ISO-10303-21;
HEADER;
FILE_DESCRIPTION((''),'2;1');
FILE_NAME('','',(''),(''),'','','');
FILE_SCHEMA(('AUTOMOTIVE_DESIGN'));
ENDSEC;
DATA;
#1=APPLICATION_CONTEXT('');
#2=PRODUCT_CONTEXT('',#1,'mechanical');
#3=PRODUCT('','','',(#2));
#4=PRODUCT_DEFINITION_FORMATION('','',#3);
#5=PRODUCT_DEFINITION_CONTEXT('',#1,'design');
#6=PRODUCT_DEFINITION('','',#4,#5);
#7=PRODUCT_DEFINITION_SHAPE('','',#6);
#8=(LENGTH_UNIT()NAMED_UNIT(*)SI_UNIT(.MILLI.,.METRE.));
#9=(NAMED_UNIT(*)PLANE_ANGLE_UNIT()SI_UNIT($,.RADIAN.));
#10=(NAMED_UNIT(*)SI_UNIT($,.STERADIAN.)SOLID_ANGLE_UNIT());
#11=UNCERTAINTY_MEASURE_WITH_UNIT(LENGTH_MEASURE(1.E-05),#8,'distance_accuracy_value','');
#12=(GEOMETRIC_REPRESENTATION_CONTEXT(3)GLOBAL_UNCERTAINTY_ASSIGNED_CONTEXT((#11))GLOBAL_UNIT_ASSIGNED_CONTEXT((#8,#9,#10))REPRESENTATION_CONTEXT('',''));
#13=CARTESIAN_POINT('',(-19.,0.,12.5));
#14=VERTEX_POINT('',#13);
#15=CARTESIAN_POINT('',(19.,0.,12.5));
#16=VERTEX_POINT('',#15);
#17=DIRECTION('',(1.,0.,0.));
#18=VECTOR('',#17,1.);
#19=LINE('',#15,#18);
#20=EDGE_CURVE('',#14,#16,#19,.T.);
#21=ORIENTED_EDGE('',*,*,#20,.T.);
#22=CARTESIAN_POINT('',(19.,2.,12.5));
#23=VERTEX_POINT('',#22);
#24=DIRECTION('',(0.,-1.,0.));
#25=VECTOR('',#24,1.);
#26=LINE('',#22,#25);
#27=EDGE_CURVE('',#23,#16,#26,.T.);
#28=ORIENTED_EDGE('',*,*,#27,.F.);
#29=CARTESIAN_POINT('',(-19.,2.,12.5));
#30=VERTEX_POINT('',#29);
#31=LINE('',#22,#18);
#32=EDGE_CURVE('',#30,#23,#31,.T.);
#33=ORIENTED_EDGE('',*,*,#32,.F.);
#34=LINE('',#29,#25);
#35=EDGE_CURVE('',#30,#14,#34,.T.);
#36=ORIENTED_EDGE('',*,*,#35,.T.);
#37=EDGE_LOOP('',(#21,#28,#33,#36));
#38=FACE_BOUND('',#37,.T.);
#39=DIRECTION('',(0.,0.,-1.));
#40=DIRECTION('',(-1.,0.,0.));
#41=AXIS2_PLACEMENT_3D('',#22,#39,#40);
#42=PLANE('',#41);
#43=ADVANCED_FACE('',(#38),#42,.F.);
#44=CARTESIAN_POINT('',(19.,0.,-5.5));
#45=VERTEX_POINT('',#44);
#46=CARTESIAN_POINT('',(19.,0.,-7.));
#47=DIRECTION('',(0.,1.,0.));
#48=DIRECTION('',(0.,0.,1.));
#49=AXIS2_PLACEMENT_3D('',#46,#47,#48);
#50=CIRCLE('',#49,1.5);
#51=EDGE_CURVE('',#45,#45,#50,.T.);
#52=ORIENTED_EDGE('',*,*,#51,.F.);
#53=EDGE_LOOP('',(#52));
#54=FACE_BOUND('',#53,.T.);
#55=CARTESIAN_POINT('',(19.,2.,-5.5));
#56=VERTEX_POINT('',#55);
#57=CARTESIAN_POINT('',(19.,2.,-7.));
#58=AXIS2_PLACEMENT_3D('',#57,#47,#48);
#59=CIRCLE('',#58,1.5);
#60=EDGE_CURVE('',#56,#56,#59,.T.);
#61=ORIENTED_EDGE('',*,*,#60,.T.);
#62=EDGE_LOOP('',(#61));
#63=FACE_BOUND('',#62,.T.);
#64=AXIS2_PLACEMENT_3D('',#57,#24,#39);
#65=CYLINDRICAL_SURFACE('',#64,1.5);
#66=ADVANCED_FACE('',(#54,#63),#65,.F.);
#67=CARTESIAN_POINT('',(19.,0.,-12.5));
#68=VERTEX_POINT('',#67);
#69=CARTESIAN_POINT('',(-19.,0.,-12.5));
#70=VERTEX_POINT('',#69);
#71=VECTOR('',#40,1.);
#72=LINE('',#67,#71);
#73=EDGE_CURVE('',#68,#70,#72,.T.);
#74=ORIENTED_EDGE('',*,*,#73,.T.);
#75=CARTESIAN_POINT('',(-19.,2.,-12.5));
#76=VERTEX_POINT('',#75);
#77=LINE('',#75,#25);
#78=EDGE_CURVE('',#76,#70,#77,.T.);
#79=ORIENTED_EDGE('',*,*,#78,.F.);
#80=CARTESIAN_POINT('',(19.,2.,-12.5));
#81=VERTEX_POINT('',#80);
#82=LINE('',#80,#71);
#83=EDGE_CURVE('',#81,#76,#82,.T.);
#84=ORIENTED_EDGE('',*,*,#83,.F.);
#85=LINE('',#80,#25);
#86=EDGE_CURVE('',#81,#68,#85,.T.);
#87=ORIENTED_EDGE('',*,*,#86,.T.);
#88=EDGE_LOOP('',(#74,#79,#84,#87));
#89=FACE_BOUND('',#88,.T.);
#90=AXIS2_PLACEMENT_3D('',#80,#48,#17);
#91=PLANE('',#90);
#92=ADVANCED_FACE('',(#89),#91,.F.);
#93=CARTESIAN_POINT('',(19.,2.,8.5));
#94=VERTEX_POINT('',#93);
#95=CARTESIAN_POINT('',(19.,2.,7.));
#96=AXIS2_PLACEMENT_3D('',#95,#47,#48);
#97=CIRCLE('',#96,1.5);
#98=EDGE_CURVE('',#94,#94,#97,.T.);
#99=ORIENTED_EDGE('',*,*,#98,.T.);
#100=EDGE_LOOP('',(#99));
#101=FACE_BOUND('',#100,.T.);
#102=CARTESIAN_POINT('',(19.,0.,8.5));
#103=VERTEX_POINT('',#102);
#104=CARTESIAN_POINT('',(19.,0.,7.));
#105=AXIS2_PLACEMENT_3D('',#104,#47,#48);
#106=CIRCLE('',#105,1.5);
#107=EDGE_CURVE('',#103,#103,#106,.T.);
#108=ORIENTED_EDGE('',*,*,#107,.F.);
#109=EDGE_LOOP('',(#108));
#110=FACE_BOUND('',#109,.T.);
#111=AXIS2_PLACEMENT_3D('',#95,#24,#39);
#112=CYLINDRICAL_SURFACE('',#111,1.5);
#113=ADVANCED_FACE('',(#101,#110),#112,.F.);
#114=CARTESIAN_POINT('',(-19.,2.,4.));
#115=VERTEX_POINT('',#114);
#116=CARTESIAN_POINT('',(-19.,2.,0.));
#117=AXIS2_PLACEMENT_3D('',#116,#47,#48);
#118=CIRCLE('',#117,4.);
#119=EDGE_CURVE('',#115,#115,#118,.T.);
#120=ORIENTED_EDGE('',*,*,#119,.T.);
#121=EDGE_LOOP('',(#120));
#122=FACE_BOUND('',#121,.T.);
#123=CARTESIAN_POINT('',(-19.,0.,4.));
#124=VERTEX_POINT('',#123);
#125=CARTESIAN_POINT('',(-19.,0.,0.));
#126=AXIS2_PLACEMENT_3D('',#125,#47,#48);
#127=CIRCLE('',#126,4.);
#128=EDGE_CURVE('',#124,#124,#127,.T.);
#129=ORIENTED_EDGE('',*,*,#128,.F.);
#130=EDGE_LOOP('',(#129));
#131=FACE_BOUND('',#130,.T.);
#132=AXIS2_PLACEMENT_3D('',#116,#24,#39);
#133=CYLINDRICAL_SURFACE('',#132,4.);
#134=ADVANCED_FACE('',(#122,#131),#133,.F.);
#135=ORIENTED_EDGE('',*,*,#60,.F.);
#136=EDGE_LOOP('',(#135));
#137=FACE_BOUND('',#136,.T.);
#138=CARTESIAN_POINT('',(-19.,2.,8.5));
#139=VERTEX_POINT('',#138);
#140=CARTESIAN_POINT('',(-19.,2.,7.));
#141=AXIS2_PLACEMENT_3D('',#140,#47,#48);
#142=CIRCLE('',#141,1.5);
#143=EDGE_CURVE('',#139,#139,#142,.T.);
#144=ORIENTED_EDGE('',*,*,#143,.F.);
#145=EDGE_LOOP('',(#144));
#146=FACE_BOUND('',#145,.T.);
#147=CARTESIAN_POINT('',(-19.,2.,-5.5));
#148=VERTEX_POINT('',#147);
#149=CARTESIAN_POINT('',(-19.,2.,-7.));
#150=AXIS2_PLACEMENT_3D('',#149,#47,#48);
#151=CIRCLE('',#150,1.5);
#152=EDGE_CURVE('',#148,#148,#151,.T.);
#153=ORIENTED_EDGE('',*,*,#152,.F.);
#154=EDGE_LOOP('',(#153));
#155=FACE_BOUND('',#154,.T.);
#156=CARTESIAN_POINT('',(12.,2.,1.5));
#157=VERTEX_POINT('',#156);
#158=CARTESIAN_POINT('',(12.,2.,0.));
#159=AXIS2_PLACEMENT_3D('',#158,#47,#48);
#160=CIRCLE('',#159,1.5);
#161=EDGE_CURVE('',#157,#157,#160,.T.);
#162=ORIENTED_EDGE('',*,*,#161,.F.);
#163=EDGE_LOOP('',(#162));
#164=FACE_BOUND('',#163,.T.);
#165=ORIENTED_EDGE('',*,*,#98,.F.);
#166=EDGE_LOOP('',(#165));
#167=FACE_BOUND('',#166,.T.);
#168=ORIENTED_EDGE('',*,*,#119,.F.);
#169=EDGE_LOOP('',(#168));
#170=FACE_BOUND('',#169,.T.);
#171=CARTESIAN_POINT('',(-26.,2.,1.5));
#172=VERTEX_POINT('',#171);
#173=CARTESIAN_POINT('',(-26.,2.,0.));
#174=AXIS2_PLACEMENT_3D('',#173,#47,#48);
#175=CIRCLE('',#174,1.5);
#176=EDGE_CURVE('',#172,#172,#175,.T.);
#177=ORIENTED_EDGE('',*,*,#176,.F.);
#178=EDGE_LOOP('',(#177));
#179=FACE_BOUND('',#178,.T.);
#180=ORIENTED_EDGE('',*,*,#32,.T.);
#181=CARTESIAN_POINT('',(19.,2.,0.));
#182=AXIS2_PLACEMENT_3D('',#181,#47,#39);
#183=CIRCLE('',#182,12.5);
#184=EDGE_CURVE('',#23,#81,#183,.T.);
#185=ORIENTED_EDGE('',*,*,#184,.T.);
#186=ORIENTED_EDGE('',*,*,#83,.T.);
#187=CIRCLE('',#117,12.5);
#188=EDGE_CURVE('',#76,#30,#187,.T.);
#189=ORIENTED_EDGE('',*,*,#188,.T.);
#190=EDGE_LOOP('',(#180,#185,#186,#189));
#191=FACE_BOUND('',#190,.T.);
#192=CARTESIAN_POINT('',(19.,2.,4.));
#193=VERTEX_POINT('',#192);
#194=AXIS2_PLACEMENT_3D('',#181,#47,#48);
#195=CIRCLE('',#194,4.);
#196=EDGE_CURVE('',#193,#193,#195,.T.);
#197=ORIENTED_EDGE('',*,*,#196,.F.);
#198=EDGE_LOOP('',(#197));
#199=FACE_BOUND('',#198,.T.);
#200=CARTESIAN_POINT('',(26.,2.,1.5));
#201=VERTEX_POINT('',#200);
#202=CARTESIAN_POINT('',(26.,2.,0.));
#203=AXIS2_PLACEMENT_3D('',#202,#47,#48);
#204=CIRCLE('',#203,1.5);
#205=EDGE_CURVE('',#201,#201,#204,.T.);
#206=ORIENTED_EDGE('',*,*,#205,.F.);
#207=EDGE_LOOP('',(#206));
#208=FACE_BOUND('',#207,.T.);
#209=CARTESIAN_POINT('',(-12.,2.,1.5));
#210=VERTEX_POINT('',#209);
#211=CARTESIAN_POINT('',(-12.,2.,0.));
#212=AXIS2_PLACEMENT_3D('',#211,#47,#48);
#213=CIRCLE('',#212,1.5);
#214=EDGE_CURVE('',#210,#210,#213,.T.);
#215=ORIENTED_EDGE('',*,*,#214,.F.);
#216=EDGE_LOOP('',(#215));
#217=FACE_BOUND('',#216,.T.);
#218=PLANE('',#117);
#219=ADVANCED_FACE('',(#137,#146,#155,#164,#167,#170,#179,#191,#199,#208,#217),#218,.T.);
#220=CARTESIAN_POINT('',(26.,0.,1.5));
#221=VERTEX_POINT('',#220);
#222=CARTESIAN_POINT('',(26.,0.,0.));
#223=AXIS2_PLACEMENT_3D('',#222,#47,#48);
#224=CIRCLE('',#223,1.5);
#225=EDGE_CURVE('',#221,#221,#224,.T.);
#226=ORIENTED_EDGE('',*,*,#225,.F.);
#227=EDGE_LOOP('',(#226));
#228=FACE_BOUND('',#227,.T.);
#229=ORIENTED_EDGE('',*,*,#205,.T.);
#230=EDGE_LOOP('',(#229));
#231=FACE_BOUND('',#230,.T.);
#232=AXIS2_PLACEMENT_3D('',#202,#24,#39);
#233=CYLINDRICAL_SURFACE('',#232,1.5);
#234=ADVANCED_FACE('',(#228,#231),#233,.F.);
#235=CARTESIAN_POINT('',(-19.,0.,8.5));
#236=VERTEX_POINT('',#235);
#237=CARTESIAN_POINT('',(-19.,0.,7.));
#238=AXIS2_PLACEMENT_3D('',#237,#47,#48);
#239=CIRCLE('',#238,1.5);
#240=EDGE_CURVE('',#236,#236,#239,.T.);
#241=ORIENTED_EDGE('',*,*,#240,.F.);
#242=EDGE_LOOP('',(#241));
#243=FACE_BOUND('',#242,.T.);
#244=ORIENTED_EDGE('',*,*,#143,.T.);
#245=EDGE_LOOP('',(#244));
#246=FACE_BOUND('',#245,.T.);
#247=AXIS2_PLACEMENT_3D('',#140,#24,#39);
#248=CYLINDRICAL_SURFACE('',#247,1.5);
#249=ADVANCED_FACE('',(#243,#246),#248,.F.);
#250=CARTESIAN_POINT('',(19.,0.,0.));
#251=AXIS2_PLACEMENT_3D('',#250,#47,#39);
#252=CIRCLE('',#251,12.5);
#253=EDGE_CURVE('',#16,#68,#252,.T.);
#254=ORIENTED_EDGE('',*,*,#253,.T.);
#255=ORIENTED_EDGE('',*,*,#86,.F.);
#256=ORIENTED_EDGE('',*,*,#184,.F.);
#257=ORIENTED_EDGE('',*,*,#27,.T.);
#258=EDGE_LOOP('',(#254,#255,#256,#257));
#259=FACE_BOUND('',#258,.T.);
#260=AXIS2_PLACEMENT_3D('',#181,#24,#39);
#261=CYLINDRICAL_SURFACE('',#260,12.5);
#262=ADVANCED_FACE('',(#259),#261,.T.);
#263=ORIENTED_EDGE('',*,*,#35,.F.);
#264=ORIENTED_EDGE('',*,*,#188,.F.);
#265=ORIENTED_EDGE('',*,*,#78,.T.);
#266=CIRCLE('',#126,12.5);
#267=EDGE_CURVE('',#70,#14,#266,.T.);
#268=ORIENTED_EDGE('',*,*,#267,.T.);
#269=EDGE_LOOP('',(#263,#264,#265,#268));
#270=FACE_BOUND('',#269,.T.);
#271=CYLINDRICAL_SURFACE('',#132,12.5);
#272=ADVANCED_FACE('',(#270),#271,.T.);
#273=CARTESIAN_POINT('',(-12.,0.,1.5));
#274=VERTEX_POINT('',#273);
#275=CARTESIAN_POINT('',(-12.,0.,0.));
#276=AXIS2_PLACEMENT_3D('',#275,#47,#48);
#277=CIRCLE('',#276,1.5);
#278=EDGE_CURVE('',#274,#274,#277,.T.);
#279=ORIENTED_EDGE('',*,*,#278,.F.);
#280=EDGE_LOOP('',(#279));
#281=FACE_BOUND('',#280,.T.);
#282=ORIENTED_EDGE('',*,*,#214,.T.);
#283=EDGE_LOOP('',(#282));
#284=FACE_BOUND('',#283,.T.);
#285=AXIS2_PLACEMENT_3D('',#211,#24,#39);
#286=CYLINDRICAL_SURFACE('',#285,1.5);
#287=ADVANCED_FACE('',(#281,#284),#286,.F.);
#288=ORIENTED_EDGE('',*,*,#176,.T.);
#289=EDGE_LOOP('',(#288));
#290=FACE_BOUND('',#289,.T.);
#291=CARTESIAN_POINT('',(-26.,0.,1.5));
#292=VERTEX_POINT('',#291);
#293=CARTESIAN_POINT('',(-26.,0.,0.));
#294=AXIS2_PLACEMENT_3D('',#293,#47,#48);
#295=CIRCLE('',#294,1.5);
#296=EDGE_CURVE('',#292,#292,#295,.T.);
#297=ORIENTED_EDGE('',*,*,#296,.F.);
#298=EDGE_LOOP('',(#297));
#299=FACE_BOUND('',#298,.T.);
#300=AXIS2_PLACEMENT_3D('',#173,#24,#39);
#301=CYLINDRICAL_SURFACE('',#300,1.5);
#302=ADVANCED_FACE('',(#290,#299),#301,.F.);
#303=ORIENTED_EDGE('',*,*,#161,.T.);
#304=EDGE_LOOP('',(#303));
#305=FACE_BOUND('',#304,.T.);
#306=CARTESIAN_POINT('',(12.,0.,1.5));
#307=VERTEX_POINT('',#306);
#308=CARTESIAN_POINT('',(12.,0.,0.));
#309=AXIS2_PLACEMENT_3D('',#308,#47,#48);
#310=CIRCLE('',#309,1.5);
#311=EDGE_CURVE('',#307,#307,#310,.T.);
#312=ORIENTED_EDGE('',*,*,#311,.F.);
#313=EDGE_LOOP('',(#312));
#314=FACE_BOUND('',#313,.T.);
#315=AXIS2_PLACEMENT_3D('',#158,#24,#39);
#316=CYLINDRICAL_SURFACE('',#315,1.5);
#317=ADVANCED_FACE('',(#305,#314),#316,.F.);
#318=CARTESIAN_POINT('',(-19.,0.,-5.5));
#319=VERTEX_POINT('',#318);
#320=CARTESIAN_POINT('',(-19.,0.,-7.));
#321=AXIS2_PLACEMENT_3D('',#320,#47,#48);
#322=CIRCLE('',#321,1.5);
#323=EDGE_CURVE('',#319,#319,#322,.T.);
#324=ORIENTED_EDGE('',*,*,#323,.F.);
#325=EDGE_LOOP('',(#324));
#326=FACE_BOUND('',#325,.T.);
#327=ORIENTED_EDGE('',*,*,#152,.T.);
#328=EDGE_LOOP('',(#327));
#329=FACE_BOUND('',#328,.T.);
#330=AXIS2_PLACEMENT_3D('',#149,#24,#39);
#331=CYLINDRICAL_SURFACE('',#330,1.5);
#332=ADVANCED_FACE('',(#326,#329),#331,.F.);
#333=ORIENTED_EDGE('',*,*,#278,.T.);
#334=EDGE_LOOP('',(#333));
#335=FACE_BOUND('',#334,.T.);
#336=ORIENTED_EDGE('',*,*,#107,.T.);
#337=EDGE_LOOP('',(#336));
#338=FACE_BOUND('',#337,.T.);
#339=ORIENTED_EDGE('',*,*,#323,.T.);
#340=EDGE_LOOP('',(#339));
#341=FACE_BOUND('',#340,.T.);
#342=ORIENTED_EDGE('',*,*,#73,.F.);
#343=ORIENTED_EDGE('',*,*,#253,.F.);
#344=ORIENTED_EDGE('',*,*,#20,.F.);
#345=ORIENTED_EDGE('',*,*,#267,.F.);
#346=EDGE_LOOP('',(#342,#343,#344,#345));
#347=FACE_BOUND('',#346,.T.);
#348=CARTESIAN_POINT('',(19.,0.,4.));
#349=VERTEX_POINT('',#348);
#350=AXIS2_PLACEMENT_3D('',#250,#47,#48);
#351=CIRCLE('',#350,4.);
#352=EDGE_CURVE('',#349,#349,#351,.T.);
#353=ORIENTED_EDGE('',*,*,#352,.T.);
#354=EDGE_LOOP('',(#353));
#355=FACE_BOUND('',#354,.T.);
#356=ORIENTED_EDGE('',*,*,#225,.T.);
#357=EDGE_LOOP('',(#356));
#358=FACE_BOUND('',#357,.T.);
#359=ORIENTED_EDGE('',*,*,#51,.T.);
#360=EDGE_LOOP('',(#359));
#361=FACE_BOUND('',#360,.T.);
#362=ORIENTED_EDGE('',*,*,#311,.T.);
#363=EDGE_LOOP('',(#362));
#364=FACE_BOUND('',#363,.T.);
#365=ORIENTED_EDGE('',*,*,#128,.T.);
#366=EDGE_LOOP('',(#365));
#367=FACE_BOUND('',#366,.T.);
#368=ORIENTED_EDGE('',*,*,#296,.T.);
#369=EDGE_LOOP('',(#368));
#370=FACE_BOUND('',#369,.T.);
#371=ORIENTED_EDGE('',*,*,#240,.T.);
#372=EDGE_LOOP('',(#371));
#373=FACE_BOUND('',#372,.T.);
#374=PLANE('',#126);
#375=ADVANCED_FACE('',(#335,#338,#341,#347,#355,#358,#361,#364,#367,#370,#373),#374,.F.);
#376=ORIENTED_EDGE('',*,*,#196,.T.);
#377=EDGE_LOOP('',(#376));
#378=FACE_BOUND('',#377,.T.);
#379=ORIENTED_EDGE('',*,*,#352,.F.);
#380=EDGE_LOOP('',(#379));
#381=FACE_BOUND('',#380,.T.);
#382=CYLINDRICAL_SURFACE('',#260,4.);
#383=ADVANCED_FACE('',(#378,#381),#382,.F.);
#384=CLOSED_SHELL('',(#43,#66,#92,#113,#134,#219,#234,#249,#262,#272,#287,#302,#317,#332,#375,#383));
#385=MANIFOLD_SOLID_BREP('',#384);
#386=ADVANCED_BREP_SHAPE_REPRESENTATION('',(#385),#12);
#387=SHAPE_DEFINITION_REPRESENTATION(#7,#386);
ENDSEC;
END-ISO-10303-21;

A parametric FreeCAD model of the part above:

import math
import FreeCAD as App
import Part
import Sketcher
from FreeCAD import Vector
Q = App.Units.Quantity

doc = App.newDocument("Part")
body = doc.addObject("PartDesign::Body", "Body")

# Sketch on XZ plane
sketch1 = body.newObject("Sketcher::SketchObject", "Sketch")
sketch1.AttachmentSupport = (doc.getObject("XZ_Plane"), [""])
sketch1.MapMode = "FlatFace"
sketch1.addGeometry([
    Part.LineSegment(Vector(-19, 12.5, 0), Vector(19, 12.5, 0)),  # 0
    Part.ArcOfCircle(Part.Circle(Vector(19, 0, 0), Vector(0, 0, 1), 12.5), math.radians(-90), math.radians(90)),  # 1
    Part.LineSegment(Vector(19, -12.5, 0), Vector(-19, -12.5, 0)),  # 2
    Part.ArcOfCircle(Part.Circle(Vector(-19, 0, 0), Vector(0, 0, 1), 12.5), math.radians(90), math.radians(270)),  # 3
    Part.Circle(Vector(19, 7, 0), Vector(0, 0, 1), 1.5),  # 4
    Part.Circle(Vector(-19, 7, 0), Vector(0, 0, 1), 1.5),  # 5
    Part.Circle(Vector(26, 0, 0), Vector(0, 0, 1), 1.5),  # 6
    Part.Circle(Vector(19, 0, 0), Vector(0, 0, 1), 4),  # 7
    Part.Circle(Vector(12, 0, 0), Vector(0, 0, 1), 1.5),  # 8
    Part.Circle(Vector(19, -7, 0), Vector(0, 0, 1), 1.5),  # 9
    Part.Circle(Vector(-12, 0, 0), Vector(0, 0, 1), 1.5),  # 10
    Part.Circle(Vector(-19, 0, 0), Vector(0, 0, 1), 4),  # 11
    Part.Circle(Vector(-26, 0, 0), Vector(0, 0, 1), 1.5),  # 12
    Part.Circle(Vector(-19, -7, 0), Vector(0, 0, 1), 1.5),  # 13
], False)
sketch1.addConstraint([
    Sketcher.Constraint("Tangent", 0, 2, 1, 2),
    Sketcher.Constraint("Tangent", 1, 1, 2, 1),
    Sketcher.Constraint("Tangent", 2, 2, 3, 2),
    Sketcher.Constraint("Tangent", 3, 1, 0, 1),
    Sketcher.Constraint("Horizontal", 0),
    Sketcher.Constraint("Horizontal", 2),
    Sketcher.Constraint("Coincident", 7, 3, 1, 3),
    Sketcher.Constraint("Coincident", 11, 3, 3, 3),
    Sketcher.Constraint("Equal", 4, 5),
    Sketcher.Constraint("Equal", 5, 6),
    Sketcher.Constraint("Equal", 6, 8),
    Sketcher.Constraint("Equal", 8, 9),
    Sketcher.Constraint("Equal", 9, 10),
    Sketcher.Constraint("Equal", 7, 11),
    Sketcher.Constraint("Equal", 10, 12),
    Sketcher.Constraint("Equal", 12, 13),
    Sketcher.Constraint("Symmetric", 1, 3, 3, 3, -1, 1),
    Sketcher.Constraint("Symmetric", 5, 3, 9, 3, -1, 1),
    Sketcher.Constraint("Symmetric", 8, 3, 10, 3, -1, 1),
    Sketcher.Constraint("Symmetric", 6, 3, 12, 3, -1, 1),
    Sketcher.Constraint("Symmetric", 4, 3, 13, 3, -1, 1),
    Sketcher.Constraint("Symmetric", 4, 3, 5, 3, -2),
    Sketcher.Constraint("PointOnObject", 6, 3, -1),
    Sketcher.Constraint("PointOnObject", 8, 3, -1),
    Sketcher.Constraint("Vertical", 1, 3, 4, 3),
    Sketcher.Constraint("Diameter", 4, Q("3 mm")),
    Sketcher.Constraint("Diameter", 7, Q("8 mm")),
    Sketcher.Constraint("Radius", 1, Q("12.5 mm")),
    Sketcher.Constraint("DistanceX", 0, 1, 0, 2, Q("38 mm")),
    Sketcher.Constraint("DistanceY", -1, 1, 4, 3, Q("7 mm")),
    Sketcher.Constraint("DistanceX", -1, 1, 6, 3, Q("26 mm")),
    Sketcher.Constraint("DistanceX", -1, 1, 8, 3, Q("12 mm")),
])
pad1 = body.newObject("PartDesign::Pad", "Pad")
pad1.Profile = sketch1
pad1.Length = 2
pad1.Reversed = True

doc.recompute()
